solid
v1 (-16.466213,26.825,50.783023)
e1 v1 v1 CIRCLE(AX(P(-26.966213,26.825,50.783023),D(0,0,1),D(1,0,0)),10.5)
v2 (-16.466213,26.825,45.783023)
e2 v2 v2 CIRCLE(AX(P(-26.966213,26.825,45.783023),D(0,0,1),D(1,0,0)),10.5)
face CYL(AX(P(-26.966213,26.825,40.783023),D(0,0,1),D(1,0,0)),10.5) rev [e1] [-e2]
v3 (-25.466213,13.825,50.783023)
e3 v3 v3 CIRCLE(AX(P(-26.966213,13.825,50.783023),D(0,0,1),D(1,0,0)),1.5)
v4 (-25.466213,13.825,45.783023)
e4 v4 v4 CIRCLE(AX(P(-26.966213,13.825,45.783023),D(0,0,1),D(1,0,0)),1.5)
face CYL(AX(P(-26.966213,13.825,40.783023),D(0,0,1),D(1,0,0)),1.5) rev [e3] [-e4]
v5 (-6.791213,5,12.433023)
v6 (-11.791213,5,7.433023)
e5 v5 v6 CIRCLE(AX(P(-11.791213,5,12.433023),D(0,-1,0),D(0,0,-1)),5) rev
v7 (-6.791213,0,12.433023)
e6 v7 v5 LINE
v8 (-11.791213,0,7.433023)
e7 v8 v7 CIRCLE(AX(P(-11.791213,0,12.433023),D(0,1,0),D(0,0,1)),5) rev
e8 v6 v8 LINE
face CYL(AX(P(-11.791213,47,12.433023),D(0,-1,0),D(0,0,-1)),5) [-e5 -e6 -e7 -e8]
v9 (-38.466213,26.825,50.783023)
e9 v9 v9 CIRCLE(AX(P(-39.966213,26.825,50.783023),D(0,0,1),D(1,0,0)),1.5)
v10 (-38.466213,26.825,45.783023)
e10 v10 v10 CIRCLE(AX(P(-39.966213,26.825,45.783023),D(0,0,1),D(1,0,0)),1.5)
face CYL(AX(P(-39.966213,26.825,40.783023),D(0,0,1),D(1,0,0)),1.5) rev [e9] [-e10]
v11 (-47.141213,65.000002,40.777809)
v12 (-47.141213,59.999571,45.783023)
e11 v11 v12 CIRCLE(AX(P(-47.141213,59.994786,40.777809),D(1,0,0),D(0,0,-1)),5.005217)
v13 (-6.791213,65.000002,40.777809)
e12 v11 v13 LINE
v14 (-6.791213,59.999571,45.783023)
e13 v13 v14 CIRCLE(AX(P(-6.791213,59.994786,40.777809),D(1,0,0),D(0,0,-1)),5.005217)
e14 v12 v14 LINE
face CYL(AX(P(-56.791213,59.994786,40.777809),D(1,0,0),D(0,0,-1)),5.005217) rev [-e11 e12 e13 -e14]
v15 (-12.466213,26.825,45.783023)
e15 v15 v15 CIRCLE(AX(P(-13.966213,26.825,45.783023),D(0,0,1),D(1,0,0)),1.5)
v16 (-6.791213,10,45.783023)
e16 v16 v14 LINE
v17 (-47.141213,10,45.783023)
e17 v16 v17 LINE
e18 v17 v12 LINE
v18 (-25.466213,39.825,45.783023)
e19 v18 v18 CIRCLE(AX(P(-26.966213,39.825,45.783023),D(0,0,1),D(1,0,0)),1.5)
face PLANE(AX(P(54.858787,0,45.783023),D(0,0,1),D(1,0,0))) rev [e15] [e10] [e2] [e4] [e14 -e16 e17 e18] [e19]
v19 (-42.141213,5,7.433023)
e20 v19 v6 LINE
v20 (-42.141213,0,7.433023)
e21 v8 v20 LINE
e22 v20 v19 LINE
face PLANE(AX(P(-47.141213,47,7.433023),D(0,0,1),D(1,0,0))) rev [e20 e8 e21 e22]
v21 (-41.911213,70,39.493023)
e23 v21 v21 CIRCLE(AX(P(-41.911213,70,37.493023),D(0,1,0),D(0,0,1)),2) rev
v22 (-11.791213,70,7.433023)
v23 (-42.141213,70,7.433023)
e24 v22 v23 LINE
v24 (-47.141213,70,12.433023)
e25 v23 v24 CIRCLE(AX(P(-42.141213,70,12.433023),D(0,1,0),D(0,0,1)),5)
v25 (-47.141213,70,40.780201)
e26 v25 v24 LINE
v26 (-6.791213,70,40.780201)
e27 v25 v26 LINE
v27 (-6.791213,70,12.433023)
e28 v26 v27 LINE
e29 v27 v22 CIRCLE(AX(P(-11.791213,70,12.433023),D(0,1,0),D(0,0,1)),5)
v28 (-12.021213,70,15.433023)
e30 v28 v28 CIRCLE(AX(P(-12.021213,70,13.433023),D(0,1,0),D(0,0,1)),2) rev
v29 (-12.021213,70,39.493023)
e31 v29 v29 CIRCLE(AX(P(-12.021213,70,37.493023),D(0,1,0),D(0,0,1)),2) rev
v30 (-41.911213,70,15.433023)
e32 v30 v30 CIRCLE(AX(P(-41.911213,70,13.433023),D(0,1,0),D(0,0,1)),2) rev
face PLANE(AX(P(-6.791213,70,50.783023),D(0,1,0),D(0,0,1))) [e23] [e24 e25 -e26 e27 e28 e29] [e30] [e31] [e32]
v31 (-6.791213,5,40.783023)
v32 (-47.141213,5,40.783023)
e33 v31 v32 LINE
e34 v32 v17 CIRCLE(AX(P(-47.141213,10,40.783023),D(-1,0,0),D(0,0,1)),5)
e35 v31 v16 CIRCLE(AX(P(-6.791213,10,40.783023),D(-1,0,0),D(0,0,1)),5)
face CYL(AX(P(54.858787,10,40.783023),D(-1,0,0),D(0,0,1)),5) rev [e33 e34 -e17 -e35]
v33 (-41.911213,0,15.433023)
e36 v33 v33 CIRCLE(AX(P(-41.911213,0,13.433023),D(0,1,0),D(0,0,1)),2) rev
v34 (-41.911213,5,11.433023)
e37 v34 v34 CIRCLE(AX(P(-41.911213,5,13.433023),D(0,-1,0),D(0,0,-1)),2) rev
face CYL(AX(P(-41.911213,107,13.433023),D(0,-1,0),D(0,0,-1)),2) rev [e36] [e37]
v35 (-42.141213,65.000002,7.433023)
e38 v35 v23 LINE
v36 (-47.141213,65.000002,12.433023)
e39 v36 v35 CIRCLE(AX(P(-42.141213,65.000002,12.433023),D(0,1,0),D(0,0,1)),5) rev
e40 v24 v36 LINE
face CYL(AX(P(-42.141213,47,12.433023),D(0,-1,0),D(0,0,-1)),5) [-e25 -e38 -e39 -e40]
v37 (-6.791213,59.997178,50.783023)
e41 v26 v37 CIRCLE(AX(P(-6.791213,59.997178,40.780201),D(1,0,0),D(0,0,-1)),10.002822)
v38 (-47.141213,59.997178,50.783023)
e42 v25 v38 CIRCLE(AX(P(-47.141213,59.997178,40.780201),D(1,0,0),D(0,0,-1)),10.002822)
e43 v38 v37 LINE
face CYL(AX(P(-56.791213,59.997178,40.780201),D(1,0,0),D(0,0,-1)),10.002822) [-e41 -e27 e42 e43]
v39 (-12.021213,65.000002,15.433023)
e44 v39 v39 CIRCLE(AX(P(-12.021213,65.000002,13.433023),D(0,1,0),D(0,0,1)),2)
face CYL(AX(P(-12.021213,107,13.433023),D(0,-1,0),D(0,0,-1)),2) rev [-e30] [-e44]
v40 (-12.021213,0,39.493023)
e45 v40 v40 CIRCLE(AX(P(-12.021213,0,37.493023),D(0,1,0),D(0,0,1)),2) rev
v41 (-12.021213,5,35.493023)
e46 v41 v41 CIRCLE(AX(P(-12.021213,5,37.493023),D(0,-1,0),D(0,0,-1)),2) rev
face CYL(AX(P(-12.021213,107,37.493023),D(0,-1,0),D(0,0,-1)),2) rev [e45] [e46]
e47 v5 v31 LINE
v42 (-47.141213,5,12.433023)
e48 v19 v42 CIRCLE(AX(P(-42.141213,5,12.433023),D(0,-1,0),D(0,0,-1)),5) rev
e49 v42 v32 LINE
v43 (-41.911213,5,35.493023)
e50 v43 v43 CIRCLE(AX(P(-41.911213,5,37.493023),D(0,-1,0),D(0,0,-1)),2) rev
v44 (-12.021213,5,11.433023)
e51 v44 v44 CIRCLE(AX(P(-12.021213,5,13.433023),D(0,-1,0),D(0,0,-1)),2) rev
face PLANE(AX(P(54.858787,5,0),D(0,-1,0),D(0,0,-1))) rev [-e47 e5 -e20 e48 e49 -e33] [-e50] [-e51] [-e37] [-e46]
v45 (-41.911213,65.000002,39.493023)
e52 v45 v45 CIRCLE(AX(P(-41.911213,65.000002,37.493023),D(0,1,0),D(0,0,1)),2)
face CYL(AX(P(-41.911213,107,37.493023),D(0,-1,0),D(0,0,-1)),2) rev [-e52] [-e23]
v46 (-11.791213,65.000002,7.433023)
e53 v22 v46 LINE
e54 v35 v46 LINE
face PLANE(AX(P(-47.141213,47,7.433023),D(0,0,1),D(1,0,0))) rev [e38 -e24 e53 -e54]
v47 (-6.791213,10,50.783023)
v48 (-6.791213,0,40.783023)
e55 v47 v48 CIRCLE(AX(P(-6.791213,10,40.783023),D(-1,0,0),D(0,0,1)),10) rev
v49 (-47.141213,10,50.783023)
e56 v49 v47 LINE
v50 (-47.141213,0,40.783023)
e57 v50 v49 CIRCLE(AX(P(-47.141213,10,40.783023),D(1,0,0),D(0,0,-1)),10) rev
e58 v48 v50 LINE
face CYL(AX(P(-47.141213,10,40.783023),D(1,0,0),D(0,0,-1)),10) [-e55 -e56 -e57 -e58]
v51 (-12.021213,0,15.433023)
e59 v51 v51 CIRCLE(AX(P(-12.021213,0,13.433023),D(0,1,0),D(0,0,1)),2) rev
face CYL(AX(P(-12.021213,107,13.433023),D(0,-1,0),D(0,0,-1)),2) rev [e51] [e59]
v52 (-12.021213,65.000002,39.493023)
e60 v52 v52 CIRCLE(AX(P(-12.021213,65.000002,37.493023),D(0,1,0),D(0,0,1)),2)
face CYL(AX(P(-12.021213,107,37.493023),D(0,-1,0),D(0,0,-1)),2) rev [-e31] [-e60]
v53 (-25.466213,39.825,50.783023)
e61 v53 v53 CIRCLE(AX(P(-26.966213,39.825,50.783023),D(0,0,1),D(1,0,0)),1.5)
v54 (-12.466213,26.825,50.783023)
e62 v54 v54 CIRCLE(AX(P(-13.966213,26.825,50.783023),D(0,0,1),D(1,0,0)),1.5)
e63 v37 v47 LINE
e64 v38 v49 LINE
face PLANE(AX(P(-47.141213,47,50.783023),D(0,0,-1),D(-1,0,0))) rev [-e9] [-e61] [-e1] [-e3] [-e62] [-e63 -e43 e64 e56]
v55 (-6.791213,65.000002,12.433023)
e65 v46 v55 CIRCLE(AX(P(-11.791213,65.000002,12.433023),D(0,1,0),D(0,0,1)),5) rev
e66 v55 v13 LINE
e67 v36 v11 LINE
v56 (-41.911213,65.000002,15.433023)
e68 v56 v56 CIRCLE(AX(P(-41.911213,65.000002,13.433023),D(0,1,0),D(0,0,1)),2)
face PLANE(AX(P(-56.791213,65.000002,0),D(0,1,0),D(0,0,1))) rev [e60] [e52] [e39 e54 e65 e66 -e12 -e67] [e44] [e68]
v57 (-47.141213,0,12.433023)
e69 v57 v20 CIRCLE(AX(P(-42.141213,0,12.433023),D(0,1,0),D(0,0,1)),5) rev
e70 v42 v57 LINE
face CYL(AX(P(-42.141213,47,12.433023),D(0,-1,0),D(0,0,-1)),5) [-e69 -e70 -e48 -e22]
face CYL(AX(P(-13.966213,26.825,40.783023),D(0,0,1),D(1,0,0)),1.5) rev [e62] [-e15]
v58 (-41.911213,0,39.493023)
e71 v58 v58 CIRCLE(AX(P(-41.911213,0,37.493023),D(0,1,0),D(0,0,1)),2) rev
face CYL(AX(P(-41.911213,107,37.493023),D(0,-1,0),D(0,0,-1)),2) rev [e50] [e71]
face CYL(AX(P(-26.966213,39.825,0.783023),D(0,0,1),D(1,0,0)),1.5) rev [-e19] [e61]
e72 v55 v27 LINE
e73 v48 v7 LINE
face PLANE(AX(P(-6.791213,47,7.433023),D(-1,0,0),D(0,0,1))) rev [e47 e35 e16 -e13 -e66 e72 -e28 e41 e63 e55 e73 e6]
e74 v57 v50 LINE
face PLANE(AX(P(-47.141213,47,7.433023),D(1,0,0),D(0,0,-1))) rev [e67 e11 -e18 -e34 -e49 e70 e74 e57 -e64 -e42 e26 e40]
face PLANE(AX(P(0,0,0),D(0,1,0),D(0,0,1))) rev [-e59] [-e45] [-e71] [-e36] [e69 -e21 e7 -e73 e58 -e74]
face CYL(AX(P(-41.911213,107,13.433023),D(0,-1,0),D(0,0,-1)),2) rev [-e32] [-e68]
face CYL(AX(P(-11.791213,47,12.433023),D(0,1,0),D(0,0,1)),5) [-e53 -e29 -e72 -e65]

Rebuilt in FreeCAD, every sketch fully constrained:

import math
import FreeCAD as App
import Part
import Sketcher

V = App.Vector
Q = App.Units.Quantity


def edges_at(feature, points):
    """Names of the edges that pass closest to the given points."""
    edges = feature.Shape.Edges
    near = lambda p: min(range(len(edges)), key=lambda i: edges[i].distToShape(Part.Vertex(*p))[0])
    return sorted({f"Edge{near(p) + 1}" for p in points})


def add_polygon(sketch, points):
    """Adds a closed chain of lines whose ends are joined by coincident constraints."""
    first, n = sketch.GeometryCount, len(points)
    for a, b in zip(points, points[1:] + points[:1]):
        sketch.addGeometry(Part.LineSegment(App.Vector(*a, 0), App.Vector(*b, 0)), False)
    for i in range(n):
        sketch.addConstraint(Sketcher.Constraint("Coincident", first + i, 2, first + (i + 1) % n, 1))

doc = App.newDocument("Part")
body = doc.addObject("PartDesign::Body", "Body")

# Sketch on XZ plane
sketch1 = body.newObject("Sketcher::SketchObject", "Sketch")
sketch1.AttachmentSupport = (doc.getObject("XZ_Plane"), [""])
sketch1.MapMode = "FlatFace"
add_polygon(sketch1, [(-47, 7), (-47, 51), (-7, 51), (-7, 7)])  # lines 0-3
sketch1.addConstraint([
    Sketcher.Constraint("Vertical", 0),
    Sketcher.Constraint("Horizontal", 1),
    Sketcher.Constraint("Vertical", 2),
    Sketcher.Constraint("Horizontal", 3),
    Sketcher.Constraint("DistanceX", 1, 1, 1, 2, Q("40.35 mm")),
    Sketcher.Constraint("DistanceY", 0, 1, 0, 2, Q("43.35 mm")),
    Sketcher.Constraint("DistanceX", 0, 2, -1, 1, Q("47.141213 mm")),
    Sketcher.Constraint("DistanceY", -1, 1, 0, 2, Q("50.783023 mm")),
])
pad1 = body.newObject("PartDesign::Pad", "Pad")
pad1.Profile = sketch1
pad1.Length = 47
pad1.Reversed = True

# Sketch on XY plane
sketch2 = body.newObject("Sketcher::SketchObject", "Sketch001")
sketch2.AttachmentSupport = (doc.getObject("XY_Plane"), [""])
sketch2.MapMode = "FlatFace"
sketch2.AttachmentOffset = App.Placement(V(0, 0, 50.783023), App.Rotation())
sketch2.addGeometry([
    Part.LineSegment(V(-47, 47, 0), V(-47, 27, 0)),  # 0
    Part.ArcOfCircle(Part.Circle(V(-27, 27, 0), V(0, 0, 1), 20), math.radians(90), math.radians(180)),  # 1
    Part.LineSegment(V(-27, 47, 0), V(-47, 47, 0)),  # 2
    Part.LineSegment(V(-7, 47, 0), V(-27, 47, 0)),  # 3
    Part.ArcOfCircle(Part.Circle(V(-27, 27, 0), V(0, 0, 1), 20), math.radians(0), math.radians(90)),  # 4
    Part.LineSegment(V(-7, 27, 0), V(-7, 47, 0)),  # 5
], False)
sketch2.addConstraint([
    Sketcher.Constraint("Tangent", 0, 2, 1, 2),
    Sketcher.Constraint("Tangent", 1, 1, 2, 1),
    Sketcher.Constraint("Coincident", 2, 2, 0, 1),
    Sketcher.Constraint("Tangent", 3, 2, 4, 2),
    Sketcher.Constraint("Tangent", 4, 1, 5, 1),
    Sketcher.Constraint("Coincident", 5, 2, 3, 1),
    Sketcher.Constraint("Vertical", 0),
    Sketcher.Constraint("Horizontal", 2),
    Sketcher.Constraint("Horizontal", 3),
    Sketcher.Constraint("Vertical", 5),
    Sketcher.Constraint("Coincident", 4, 3, 1, 3),
    Sketcher.Constraint("Equal", 1, 4),
    Sketcher.Constraint("DistanceY", -1, 1, 1, 1, Q("47 mm")),
    Sketcher.Constraint("Radius", 1, Q("20.175 mm")),
    Sketcher.Constraint("DistanceX", 1, 3, -1, 1, Q("26.966213 mm")),
])
pocket1 = body.newObject("PartDesign::Pocket", "Pocket")
pocket1.Profile = sketch2
pocket1.Length = 102
doc.recompute()

fillet = body.newObject("PartDesign::Fillet", "Fillet")
fillet.Base = (pocket1, edges_at(pocket1, [(-26.966, 0, 50.783)]))
fillet.Radius = 10

# Sketch on YZ plane
sketch3 = body.newObject("Sketcher::SketchObject", "Sketch002")
sketch3.AttachmentSupport = (doc.getObject("YZ_Plane"), [""])
sketch3.MapMode = "FlatFace"
sketch3.AttachmentOffset = App.Placement(V(0, 0, -47.141213), App.Rotation())
sketch3.addGeometry([
    Part.LineSegment(V(5, -7, 0), V(5, 41, 0)),  # 0
    Part.ArcOfCircle(Part.Circle(V(10, 41, 0), V(0, 0, 1), 5), math.radians(90), math.radians(180)),  # 1
    Part.LineSegment(V(10, 46, 0), V(60, 46, 0)),  # 2
    Part.LineSegment(V(60, 46, 0), V(60, -7, 0)),  # 3
    Part.LineSegment(V(60, -7, 0), V(5, -7, 0)),  # 4
], False)
sketch3.addConstraint([
    Sketcher.Constraint("Tangent", 0, 2, 1, 2),
    Sketcher.Constraint("Tangent", 1, 1, 2, 1),
    Sketcher.Constraint("Coincident", 2, 2, 3, 1),
    Sketcher.Constraint("Coincident", 3, 2, 4, 1),
    Sketcher.Constraint("Coincident", 4, 2, 0, 1),
    Sketcher.Constraint("Vertical", 0),
    Sketcher.Constraint("Horizontal", 2),
    Sketcher.Constraint("Vertical", 3),
    Sketcher.Constraint("Horizontal", 4),
    Sketcher.Constraint("Radius", 1, Q("5 mm")),
    Sketcher.Constraint("DistanceX", -1, 1, 1, 3, Q("10 mm")),
    Sketcher.Constraint("DistanceX", 2, 1, 2, 2, Q("49.778437 mm")),
    Sketcher.Constraint("DistanceY", 0, 1, 0, 2, Q("47.448787 mm")),
    Sketcher.Constraint("DistanceY", -1, 1, 1, 3, Q("40.783023 mm")),
])
pocket2 = body.newObject("PartDesign::Pocket", "Pocket001")
pocket2.Profile = sketch3
pocket2.Length = 102
pocket2.Reversed = True
doc.recompute()

fillet2 = body.newObject("PartDesign::Fillet", "Fillet001")
fillet2.Base = (pocket2, edges_at(pocket2, [(-6.791, 2.5, 7.433), (-47.141, 2.5, 7.433)]))
fillet2.Radius = 5

# Sketch on XY plane
sketch4 = body.newObject("Sketcher::SketchObject", "Sketch003")
sketch4.AttachmentSupport = (doc.getObject("XY_Plane"), [""])
sketch4.MapMode = "FlatFace"
sketch4.AttachmentOffset = App.Placement(V(0, 0, 50.783023), App.Rotation())
sketch4.addGeometry([
    Part.Circle(V(-27, 26.8, 0), V(0, 0, 1), 10.5),  # 0
    Part.Circle(V(-27, 39.8, 0), V(0, 0, 1), 1.5),  # 1
    Part.Circle(V(-14, 26.8, 0), V(0, 0, 1), 1.5),  # 2
    Part.Circle(V(-27, 13.8, 0), V(0, 0, 1), 1.5),  # 3
    Part.Circle(V(-40, 26.8, 0), V(0, 0, 1), 1.5),  # 4
], False)
sketch4.addConstraint([
    Sketcher.Constraint("Equal", 1, 2),
    Sketcher.Constraint("Equal", 2, 3),
    Sketcher.Constraint("Equal", 3, 4),
    Sketcher.Constraint("Horizontal", 0, 3, 2, 3),
    Sketcher.Constraint("Horizontal", 2, 3, 4, 3),
    Sketcher.Constraint("Vertical", 0, 3, 1, 3),
    Sketcher.Constraint("Vertical", 1, 3, 3, 3),
    Sketcher.Constraint("Diameter", 0, Q("21 mm")),
    Sketcher.Constraint("Diameter", 1, Q("3 mm")),
    Sketcher.Constraint("DistanceY", 0, 3, 1, 3, Q("13 mm")),
    Sketcher.Constraint("DistanceX", 0, 3, 2, 3, Q("13 mm")),
    Sketcher.Constraint("DistanceY", 3, 3, 0, 3, Q("13 mm")),
    Sketcher.Constraint("DistanceX", 4, 3, 0, 3, Q("13 mm")),
    Sketcher.Constraint("DistanceY", -1, 1, 0, 3, Q("26.825 mm")),
    Sketcher.Constraint("DistanceX", 0, 3, -1, 1, Q("26.966213 mm")),
])
pocket3 = body.newObject("PartDesign::Pocket", "Pocket002")
pocket3.Profile = sketch4
pocket3.Length = 10

# Sketch on XY plane
sketch5 = body.newObject("Sketcher::SketchObject", "Sketch004")
sketch5.AttachmentSupport = (doc.getObject("XY_Plane"), [""])
sketch5.MapMode = "FlatFace"
sketch5.AttachmentOffset = App.Placement(V(0, 0, 45.783023), App.Rotation())
add_polygon(sketch5, [(-7, 70), (-7, 27), (-47, 27), (-47, 70)])  # lines 0-3
sketch5.addConstraint([
    Sketcher.Constraint("Vertical", 0),
    Sketcher.Constraint("Horizontal", 1),
    Sketcher.Constraint("Vertical", 2),
    Sketcher.Constraint("Horizontal", 3),
    Sketcher.Constraint("DistanceY", -1, 1, 2, 2, Q("70 mm")),
    Sketcher.Constraint("DistanceX", 1, 2, 1, 1, Q("40.35 mm")),
    Sketcher.Constraint("DistanceY", 0, 2, 0, 1, Q("43.175 mm")),
    Sketcher.Constraint("DistanceX", 0, 2, -1, 1, Q("6.791213 mm")),
])
pad2 = body.newObject("PartDesign::Pad", "Pad001")
pad2.Profile = sketch5
pad2.Type = "TwoLengths"
pad2.Length = 38.35
pad2.Length2 = 5
pad2.Reversed = True

# Sketch on XZ plane
sketch6 = body.newObject("Sketcher::SketchObject", "Sketch005")
sketch6.AttachmentSupport = (doc.getObject("XZ_Plane"), [""])
sketch6.MapMode = "FlatFace"
sketch6.AttachmentOffset = App.Placement(V(0, 0, -5), App.Rotation())
sketch6.addGeometry([
    Part.Circle(V(-41.9, 13.4, 0), V(0, 0, 1), 2),
    Part.Circle(V(-12, 13.4, 0), V(0, 0, 1), 2),
    Part.Circle(V(-41.9, 37.5, 0), V(0, 0, 1), 2),
    Part.Circle(V(-12, 37.5, 0), V(0, 0, 1), 2),
], False)
sketch6.addConstraint([
    Sketcher.Constraint("Equal", 0, 1),
    Sketcher.Constraint("Equal", 1, 2),
    Sketcher.Constraint("Equal", 2, 3),
    Sketcher.Constraint("Horizontal", 0, 3, 1, 3),
    Sketcher.Constraint("Horizontal", 2, 3, 3, 3),
    Sketcher.Constraint("Vertical", 0, 3, 2, 3),
    Sketcher.Constraint("Vertical", 1, 3, 3, 3),
    Sketcher.Constraint("Diameter", 0, Q("4 mm")),
    Sketcher.Constraint("DistanceX", 0, 3, 1, 3, Q("29.89 mm")),
    Sketcher.Constraint("DistanceY", 0, 3, 2, 3, Q("24.06 mm")),
    Sketcher.Constraint("DistanceX", 0, 3, -1, 1, Q("41.911213 mm")),
    Sketcher.Constraint("DistanceY", -1, 1, 0, 3, Q("13.433023 mm")),
])
pocket4 = body.newObject("PartDesign::Pocket", "Pocket003")
pocket4.Profile = sketch6
pocket4.Type = "ThroughAll"
pocket4.Midplane = True

# Sketch on YZ plane
sketch7 = body.newObject("Sketcher::SketchObject", "Sketch006")
sketch7.AttachmentSupport = (doc.getObject("YZ_Plane"), [""])
sketch7.MapMode = "FlatFace"
sketch7.AttachmentOffset = App.Placement(V(0, 0, -6.791213), App.Rotation())
sketch7.addGeometry([
    Part.LineSegment(V(27, 7, 0), V(65, 7, 0)),  # 0
    Part.LineSegment(V(65, 7, 0), V(65, 41, 0)),  # 1
    Part.ArcOfCircle(Part.Circle(V(60, 41, 0), V(0, 0, 1), 5), math.radians(0), math.radians(90)),  # 2
    Part.LineSegment(V(60, 46, 0), V(27, 46, 0)),  # 3
    Part.LineSegment(V(27, 46, 0), V(27, 7, 0)),  # 4
    Part.ArcOfCircle(Part.Circle(V(60, 41, 0), V(0, 0, 1), 10), math.radians(0), math.radians(90)),  # 5
    Part.LineSegment(V(70, 41, 0), V(70, 51, 0)),  # 6
    Part.LineSegment(V(70, 51, 0), V(60, 51, 0)),  # 7
], False)
sketch7.addConstraint([
    Sketcher.Constraint("Coincident", 0, 2, 1, 1),
    Sketcher.Constraint("Tangent", 1, 2, 2, 1),
    Sketcher.Constraint("Coincident", 2, 2, 3, 1),
    Sketcher.Constraint("Coincident", 3, 2, 4, 1),
    Sketcher.Constraint("Coincident", 4, 2, 0, 1),
    Sketcher.Constraint("Tangent", 5, 1, 6, 1),
    Sketcher.Constraint("Coincident", 6, 2, 7, 1),
    Sketcher.Constraint("Tangent", 7, 2, 5, 2),
    Sketcher.Constraint("Horizontal", 0),
    Sketcher.Constraint("Vertical", 1),
    Sketcher.Constraint("Horizontal", 3),
    Sketcher.Constraint("Vertical", 4),
    Sketcher.Constraint("Vertical", 6),
    Sketcher.Constraint("Horizontal", 7),
    Sketcher.Constraint("DistanceX", -1, 1, 5, 1, Q("70 mm")),
    Sketcher.Constraint("DistanceY", 2, 2, 6, 2, Q("5 mm")),
    Sketcher.Constraint("DistanceY", 4, 2, 4, 1, Q("38.35 mm")),
    Sketcher.Constraint("Radius", 5, Q("10.002822 mm")),
    Sketcher.Constraint("DistanceX", -1, 1, 3, 2, Q("26.825 mm")),
    Sketcher.Constraint("Radius", 2, Q("5.005217 mm")),
    Sketcher.Constraint("DistanceX", 3, 2, 3, 1, Q("33.174571 mm")),
    Sketcher.Constraint("DistanceY", -1, 1, 5, 3, Q("40.780201 mm")),
    Sketcher.Constraint("DistanceX", 0, 1, 0, 2, Q("38.175002 mm")),
])
pocket5 = body.newObject("PartDesign::Pocket", "Pocket004")
pocket5.Profile = sketch7
pocket5.Length = 50
doc.recompute()

fillet3 = body.newObject("PartDesign::Fillet", "Fillet002")
fillet3.Base = (pocket5, edges_at(pocket5, [(-47.141, 67.5, 7.433), (-6.791, 67.5, 7.433)]))
fillet3.Radius = 5

# Sketch on XY plane
sketch8 = body.newObject("Sketcher::SketchObject", "Sketch007")
sketch8.AttachmentSupport = (doc.getObject("XY_Plane"), [""])
sketch8.MapMode = "FlatFace"
sketch8.AttachmentOffset = App.Placement(V(0, 0, 50.783023), App.Rotation())
sketch8.addGeometry([
    Part.Circle(V(-27, 26.8, 0), V(0, 0, 1), 10.5),  # 0
    Part.Circle(V(-14, 26.8, 0), V(0, 0, 1), 1.5),  # 1
    Part.Circle(V(-27, 13.8, 0), V(0, 0, 1), 1.5),  # 2
    Part.Circle(V(-40, 26.8, 0), V(0, 0, 1), 1.5),  # 3
    Part.Circle(V(-27, 39.8, 0), V(0, 0, 1), 1.5),  # 4
], False)
sketch8.addConstraint([
    Sketcher.Constraint("Equal", 1, 2),
    Sketcher.Constraint("Equal", 2, 3),
    Sketcher.Constraint("Equal", 3, 4),
    Sketcher.Constraint("Horizontal", 0, 3, 1, 3),
    Sketcher.Constraint("Horizontal", 1, 3, 3, 3),
    Sketcher.Constraint("Vertical", 0, 3, 2, 3),
    Sketcher.Constraint("Vertical", 2, 3, 4, 3),
    Sketcher.Constraint("Diameter", 0, Q("21 mm")),
    Sketcher.Constraint("Diameter", 1, Q("3 mm")),
    Sketcher.Constraint("DistanceX", 0, 3, 1, 3, Q("13 mm")),
    Sketcher.Constraint("DistanceY", 2, 3, 0, 3, Q("13 mm")),
    Sketcher.Constraint("DistanceX", 3, 3, 0, 3, Q("13 mm")),
    Sketcher.Constraint("DistanceY", 0, 3, 4, 3, Q("13 mm")),
    Sketcher.Constraint("DistanceY", -1, 1, 0, 3, Q("26.825 mm")),
    Sketcher.Constraint("DistanceX", 0, 3, -1, 1, Q("26.966213 mm")),
])
pocket6 = body.newObject("PartDesign::Pocket", "Pocket005")
pocket6.Profile = sketch8
pocket6.Length = 50

doc.recompute()
